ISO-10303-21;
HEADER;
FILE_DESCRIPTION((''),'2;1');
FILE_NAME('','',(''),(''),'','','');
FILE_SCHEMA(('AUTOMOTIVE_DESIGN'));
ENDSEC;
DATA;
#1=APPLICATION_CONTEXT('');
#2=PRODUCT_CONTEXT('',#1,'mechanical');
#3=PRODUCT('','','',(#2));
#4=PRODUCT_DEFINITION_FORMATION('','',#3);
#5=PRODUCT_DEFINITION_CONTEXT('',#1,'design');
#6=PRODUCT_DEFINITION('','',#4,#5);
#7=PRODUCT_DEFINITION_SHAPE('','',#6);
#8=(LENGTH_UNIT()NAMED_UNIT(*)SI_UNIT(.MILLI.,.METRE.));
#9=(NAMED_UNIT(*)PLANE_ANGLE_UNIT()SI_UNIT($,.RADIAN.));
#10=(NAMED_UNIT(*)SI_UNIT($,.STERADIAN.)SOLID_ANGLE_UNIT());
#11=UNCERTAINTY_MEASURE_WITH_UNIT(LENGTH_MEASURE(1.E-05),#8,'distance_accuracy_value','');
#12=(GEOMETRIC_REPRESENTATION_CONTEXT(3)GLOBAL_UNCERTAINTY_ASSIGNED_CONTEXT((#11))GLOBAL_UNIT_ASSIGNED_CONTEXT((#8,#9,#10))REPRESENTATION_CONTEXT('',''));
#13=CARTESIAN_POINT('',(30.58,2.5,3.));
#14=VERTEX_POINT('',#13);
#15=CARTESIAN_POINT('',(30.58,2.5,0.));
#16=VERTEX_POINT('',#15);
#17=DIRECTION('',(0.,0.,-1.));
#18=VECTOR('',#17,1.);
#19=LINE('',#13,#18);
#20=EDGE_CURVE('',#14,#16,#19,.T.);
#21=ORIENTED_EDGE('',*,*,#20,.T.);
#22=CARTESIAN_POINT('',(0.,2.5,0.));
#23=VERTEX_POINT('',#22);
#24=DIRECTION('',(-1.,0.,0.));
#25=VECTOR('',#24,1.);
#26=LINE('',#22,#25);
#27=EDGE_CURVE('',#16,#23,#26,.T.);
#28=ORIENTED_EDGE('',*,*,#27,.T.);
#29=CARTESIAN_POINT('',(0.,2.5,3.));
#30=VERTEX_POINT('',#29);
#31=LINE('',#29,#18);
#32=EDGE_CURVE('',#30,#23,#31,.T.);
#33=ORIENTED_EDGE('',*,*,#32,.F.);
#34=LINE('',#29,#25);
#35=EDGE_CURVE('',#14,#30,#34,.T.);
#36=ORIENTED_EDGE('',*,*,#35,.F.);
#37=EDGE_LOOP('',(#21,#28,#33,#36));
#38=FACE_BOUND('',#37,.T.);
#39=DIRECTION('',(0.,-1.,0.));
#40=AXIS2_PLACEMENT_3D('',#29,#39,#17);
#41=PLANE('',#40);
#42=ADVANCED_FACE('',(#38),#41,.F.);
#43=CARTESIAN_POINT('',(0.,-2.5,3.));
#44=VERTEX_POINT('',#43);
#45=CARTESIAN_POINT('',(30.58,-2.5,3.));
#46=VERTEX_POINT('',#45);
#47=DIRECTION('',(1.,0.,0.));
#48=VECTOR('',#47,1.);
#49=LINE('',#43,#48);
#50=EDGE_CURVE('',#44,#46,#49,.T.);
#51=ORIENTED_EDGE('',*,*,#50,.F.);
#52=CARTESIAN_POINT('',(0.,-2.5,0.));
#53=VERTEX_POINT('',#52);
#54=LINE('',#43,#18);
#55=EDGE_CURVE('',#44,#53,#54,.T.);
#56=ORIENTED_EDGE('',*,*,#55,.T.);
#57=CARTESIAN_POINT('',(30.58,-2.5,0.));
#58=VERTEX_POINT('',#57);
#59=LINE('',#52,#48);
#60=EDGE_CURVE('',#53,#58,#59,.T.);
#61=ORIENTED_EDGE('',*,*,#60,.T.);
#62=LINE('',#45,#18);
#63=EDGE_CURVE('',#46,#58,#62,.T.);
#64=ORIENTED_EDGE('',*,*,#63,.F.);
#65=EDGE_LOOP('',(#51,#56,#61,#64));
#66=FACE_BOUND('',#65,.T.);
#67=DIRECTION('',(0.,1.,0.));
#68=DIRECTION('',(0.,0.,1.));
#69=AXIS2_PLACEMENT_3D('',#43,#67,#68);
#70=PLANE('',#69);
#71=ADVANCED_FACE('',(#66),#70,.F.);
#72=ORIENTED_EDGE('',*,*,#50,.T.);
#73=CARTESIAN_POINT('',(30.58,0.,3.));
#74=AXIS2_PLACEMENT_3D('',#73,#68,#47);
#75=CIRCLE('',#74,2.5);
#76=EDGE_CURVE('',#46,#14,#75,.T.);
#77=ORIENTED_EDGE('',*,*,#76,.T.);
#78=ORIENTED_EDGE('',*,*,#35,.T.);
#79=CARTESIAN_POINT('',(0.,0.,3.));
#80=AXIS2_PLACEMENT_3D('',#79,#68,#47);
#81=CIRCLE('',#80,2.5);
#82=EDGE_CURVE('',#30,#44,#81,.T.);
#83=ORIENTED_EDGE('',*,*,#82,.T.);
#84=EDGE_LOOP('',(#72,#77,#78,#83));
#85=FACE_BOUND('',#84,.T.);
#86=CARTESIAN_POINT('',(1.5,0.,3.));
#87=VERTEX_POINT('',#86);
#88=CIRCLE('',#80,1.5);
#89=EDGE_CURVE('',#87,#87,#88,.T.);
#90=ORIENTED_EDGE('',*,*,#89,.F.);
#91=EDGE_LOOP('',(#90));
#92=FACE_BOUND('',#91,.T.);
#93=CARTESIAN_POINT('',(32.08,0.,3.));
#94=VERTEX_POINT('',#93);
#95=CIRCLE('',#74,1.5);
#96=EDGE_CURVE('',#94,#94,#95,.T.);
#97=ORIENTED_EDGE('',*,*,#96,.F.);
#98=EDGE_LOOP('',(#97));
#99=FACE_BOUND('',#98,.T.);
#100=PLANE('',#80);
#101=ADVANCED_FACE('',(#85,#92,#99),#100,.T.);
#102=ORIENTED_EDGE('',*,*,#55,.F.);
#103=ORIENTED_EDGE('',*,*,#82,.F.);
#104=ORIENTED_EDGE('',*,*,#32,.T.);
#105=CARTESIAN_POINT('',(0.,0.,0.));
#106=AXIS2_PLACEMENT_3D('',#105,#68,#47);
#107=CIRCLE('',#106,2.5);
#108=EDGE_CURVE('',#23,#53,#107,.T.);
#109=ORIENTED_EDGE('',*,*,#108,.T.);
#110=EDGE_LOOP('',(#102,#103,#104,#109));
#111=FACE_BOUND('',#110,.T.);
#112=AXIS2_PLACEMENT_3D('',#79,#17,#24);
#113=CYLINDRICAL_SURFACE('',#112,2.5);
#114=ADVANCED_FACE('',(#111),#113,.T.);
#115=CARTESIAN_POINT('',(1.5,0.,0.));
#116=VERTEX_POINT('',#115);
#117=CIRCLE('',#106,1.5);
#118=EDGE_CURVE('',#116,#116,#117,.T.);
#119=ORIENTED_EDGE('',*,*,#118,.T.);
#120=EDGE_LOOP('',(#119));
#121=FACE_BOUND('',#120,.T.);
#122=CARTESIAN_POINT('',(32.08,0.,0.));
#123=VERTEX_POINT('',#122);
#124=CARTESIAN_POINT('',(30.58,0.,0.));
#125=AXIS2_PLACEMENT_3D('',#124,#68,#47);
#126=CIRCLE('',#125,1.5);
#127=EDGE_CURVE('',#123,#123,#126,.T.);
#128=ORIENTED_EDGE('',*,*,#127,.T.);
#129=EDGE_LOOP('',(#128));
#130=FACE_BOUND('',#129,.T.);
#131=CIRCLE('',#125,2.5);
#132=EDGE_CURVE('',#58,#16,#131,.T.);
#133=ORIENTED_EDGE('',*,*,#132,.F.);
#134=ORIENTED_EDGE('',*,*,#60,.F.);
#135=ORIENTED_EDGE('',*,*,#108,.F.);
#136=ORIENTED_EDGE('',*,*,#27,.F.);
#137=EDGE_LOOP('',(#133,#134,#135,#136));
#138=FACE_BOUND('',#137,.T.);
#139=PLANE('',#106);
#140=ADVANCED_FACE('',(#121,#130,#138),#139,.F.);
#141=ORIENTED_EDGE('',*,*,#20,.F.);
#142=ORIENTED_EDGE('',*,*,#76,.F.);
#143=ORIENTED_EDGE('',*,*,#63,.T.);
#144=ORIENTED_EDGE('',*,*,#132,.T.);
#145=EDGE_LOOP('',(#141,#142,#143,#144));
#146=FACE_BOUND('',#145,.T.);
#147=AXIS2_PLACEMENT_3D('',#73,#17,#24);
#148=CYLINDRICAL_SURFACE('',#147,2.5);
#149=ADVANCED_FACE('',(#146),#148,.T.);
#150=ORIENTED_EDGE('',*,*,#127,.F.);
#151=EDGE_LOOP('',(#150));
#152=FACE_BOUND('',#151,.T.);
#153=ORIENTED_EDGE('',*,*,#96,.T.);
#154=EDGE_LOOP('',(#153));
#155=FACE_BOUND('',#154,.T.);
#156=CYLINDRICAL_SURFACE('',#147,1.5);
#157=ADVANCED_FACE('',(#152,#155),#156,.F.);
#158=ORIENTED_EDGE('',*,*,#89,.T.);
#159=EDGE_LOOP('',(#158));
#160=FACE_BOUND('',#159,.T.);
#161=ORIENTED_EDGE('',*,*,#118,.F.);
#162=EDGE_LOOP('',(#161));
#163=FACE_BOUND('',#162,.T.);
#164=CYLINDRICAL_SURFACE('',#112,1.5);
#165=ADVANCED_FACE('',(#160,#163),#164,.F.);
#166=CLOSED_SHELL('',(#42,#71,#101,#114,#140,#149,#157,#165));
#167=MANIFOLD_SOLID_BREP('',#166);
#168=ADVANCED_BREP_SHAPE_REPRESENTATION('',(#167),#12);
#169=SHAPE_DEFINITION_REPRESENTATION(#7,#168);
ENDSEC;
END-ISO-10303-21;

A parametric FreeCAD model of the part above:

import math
import FreeCAD as App
import Part
import Sketcher
from FreeCAD import Vector
Q = App.Units.Quantity

doc = App.newDocument("Part")
body = doc.addObject("PartDesign::Body", "Body")

sketch1 = doc.addObject("Sketcher::SketchObject", "Sketch")
body.addObject(sketch1)
sketch1.AttachmentSupport = (doc.XY_Plane, [""])
sketch1.MapMode = "FlatFace"
sketch1.addGeometry(Part.LineSegment(Vector(30.6, 2.5, 0), Vector(0, 2.5, 0)), False)
sketch1.addGeometry(Part.ArcOfCircle(Part.Circle(Vector(0, 0, 0), Vector(0, 0, 1), 2.5), math.radians(90), math.radians(270)), False)
sketch1.addGeometry(Part.LineSegment(Vector(0, -2.5, 0), Vector(30.6, -2.5, 0)), False)
sketch1.addGeometry(Part.ArcOfCircle(Part.Circle(Vector(30.6, 0, 0), Vector(0, 0, 1), 2.5), math.radians(-90), math.radians(90)), False)
sketch1.addGeometry(Part.Circle(Vector(30.6, 0, 0), Vector(0, 0, 1), 1.5), False)
sketch1.addGeometry(Part.Circle(Vector(0, 0, 0), Vector(0, 0, 1), 1.5), False)
sketch1.addConstraint(Sketcher.Constraint("Tangent", 0, 2, 1, 1))
sketch1.addConstraint(Sketcher.Constraint("Tangent", 1, 2, 2, 1))
sketch1.addConstraint(Sketcher.Constraint("Tangent", 2, 2, 3, 1))
sketch1.addConstraint(Sketcher.Constraint("Tangent", 3, 2, 0, 1))
sketch1.addConstraint(Sketcher.Constraint("Horizontal", 0))
sketch1.addConstraint(Sketcher.Constraint("Horizontal", 2))
sketch1.addConstraint(Sketcher.Constraint("Coincident", 1, 3, -1, 1))
sketch1.addConstraint(Sketcher.Constraint("Coincident", 5, 3, -1, 1))
sketch1.addConstraint(Sketcher.Constraint("Coincident", 4, 3, 3, 3))
sketch1.addConstraint(Sketcher.Constraint("Equal", 4, 5))
sketch1.addConstraint(Sketcher.Constraint("Diameter", 4, Q("3 mm")))
sketch1.addConstraint(Sketcher.Constraint("Radius", 1, Q("2.5 mm")))
sketch1.addConstraint(Sketcher.Constraint("DistanceX", 0, 2, 0, 1, Q("30.58 mm")))
pad1 = doc.addObject("PartDesign::Pad", "Pad")
body.addObject(pad1)
pad1.Profile = sketch1
pad1.Length = 3

doc.recompute()
